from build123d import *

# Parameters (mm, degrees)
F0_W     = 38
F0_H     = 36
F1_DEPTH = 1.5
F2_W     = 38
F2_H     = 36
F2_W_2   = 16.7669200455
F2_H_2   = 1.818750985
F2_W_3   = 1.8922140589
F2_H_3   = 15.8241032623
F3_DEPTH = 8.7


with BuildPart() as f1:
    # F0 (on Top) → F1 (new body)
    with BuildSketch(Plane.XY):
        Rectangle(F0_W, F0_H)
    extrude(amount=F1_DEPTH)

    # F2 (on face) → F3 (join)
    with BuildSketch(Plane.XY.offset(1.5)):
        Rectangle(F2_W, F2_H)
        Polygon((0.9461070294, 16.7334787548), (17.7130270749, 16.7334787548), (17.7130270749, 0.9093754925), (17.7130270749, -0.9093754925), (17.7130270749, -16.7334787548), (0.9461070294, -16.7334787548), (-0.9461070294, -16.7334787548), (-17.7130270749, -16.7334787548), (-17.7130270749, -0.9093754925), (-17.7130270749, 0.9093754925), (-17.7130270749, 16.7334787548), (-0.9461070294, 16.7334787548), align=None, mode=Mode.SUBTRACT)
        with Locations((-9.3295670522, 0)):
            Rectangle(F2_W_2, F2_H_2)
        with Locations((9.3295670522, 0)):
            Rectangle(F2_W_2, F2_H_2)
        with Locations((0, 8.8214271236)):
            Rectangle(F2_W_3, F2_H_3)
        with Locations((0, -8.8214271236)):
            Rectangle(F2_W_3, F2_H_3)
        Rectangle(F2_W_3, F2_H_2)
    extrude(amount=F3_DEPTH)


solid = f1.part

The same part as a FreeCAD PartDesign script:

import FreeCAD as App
import Part
import Sketcher

V = App.Vector
Q = App.Units.Quantity

doc = App.newDocument("Part")
body = doc.addObject("PartDesign::Body", "Body")

# Sketch on XY plane
sketch1 = body.newObject("Sketcher::SketchObject", "Sketch")
sketch1.AttachmentSupport = (doc.getObject("XY_Plane"), [""])
sketch1.MapMode = "FlatFace"
sketch1.addGeometry([
    Part.LineSegment(V(-19, 18, 0), V(-19, -18, 0)),
    Part.LineSegment(V(-19, -18, 0), V(19, -18, 0)),
    Part.LineSegment(V(19, -18, 0), V(19, 18, 0)),
    Part.LineSegment(V(19, 18, 0), V(-19, 18, 0)),
], False)
sketch1.addConstraint([
    Sketcher.Constraint("Coincident", 0, 2, 1, 1),
    Sketcher.Constraint("Coincident", 1, 2, 2, 1),
    Sketcher.Constraint("Coincident", 2, 2, 3, 1),
    Sketcher.Constraint("Coincident", 3, 2, 0, 1),
    Sketcher.Constraint("Vertical", 0),
    Sketcher.Constraint("Horizontal", 1),
    Sketcher.Constraint("Vertical", 2),
    Sketcher.Constraint("Horizontal", 3),
    Sketcher.Constraint("Symmetric", 0, 2, 2, 2, -1, 1),
    Sketcher.Constraint("DistanceX", 1, 1, 1, 2, Q("38 mm")),
    Sketcher.Constraint("DistanceY", 0, 2, 0, 1, Q("36 mm")),
])
pad1 = body.newObject("PartDesign::Pad", "Pad")
pad1.Profile = sketch1
pad1.Length = 1.5

# Sketch on XY plane
sketch2 = body.newObject("Sketcher::SketchObject", "Sketch001")
sketch2.AttachmentSupport = (doc.getObject("XY_Plane"), [""])
sketch2.MapMode = "FlatFace"
sketch2.AttachmentOffset = App.Placement(V(0, 0, 1.5), App.Rotation())
sketch2.addGeometry([
    Part.LineSegment(V(-19, 18, 0), V(-19, -18, 0)),  # 0
    Part.LineSegment(V(-19, -18, 0), V(19, -18, 0)),  # 1
    Part.LineSegment(V(19, -18, 0), V(19, 18, 0)),  # 2
    Part.LineSegment(V(19, 18, 0), V(-19, 18, 0)),  # 3
    Part.LineSegment(V(-18, -1, 0), V(-1, -1, 0)),  # 4
    Part.LineSegment(V(-1, -1, 0), V(-1, -17, 0)),  # 5
    Part.LineSegment(V(-1, -17, 0), V(-18, -17, 0)),  # 6
    Part.LineSegment(V(-18, -17, 0), V(-18, -1, 0)),  # 7
    Part.LineSegment(V(1, -17, 0), V(1, -1, 0)),  # 8
    Part.LineSegment(V(1, -1, 0), V(18, -1, 0)),  # 9
    Part.LineSegment(V(18, -1, 0), V(18, -17, 0)),  # 10
    Part.LineSegment(V(18, -17, 0), V(1, -17, 0)),  # 11
    Part.LineSegment(V(-1, 1, 0), V(-18, 1, 0)),  # 12
    Part.LineSegment(V(-18, 1, 0), V(-18, 17, 0)),  # 13
    Part.LineSegment(V(-18, 17, 0), V(-1, 17, 0)),  # 14
    Part.LineSegment(V(-1, 17, 0), V(-1, 1, 0)),  # 15
    Part.LineSegment(V(18, 1, 0), V(1, 1, 0)),  # 16
    Part.LineSegment(V(1, 1, 0), V(1, 17, 0)),  # 17
    Part.LineSegment(V(1, 17, 0), V(18, 17, 0)),  # 18
    Part.LineSegment(V(18, 17, 0), V(18, 1, 0)),  # 19
], False)
sketch2.addConstraint([
    Sketcher.Constraint("Coincident", 0, 2, 1, 1),
    Sketcher.Constraint("Coincident", 1, 2, 2, 1),
    Sketcher.Constraint("Coincident", 2, 2, 3, 1),
    Sketcher.Constraint("Coincident", 3, 2, 0, 1),
    Sketcher.Constraint("Coincident", 4, 2, 5, 1),
    Sketcher.Constraint("Coincident", 5, 2, 6, 1),
    Sketcher.Constraint("Coincident", 6, 2, 7, 1),
    Sketcher.Constraint("Coincident", 7, 2, 4, 1),
    Sketcher.Constraint("Coincident", 8, 2, 9, 1),
    Sketcher.Constraint("Coincident", 9, 2, 10, 1),
    Sketcher.Constraint("Coincident", 10, 2, 11, 1),
    Sketcher.Constraint("Coincident", 11, 2, 8, 1),
    Sketcher.Constraint("Coincident", 12, 2, 13, 1),
    Sketcher.Constraint("Coincident", 13, 2, 14, 1),
    Sketcher.Constraint("Coincident", 14, 2, 15, 1),
    Sketcher.Constraint("Coincident", 15, 2, 12, 1),
    Sketcher.Constraint("Coincident", 16, 2, 17, 1),
    Sketcher.Constraint("Coincident", 17, 2, 18, 1),
    Sketcher.Constraint("Coincident", 18, 2, 19, 1),
    Sketcher.Constraint("Coincident", 19, 2, 16, 1),
    Sketcher.Constraint("Vertical", 0),
    Sketcher.Constraint("Horizontal", 1),
    Sketcher.Constraint("Vertical", 2),
    Sketcher.Constraint("Horizontal", 3),
    Sketcher.Constraint("Horizontal", 4),
    Sketcher.Constraint("Vertical", 5),
    Sketcher.Constraint("Horizontal", 6),
    Sketcher.Constraint("Vertical", 7),
    Sketcher.Constraint("Vertical", 8),
    Sketcher.Constraint("Horizontal", 9),
    Sketcher.Constraint("Vertical", 10),
    Sketcher.Constraint("Horizontal", 11),
    Sketcher.Constraint("Horizontal", 12),
    Sketcher.Constraint("Vertical", 13),
    Sketcher.Constraint("Horizontal", 14),
    Sketcher.Constraint("Vertical", 15),
    Sketcher.Constraint("Horizontal", 16),
    Sketcher.Constraint("Vertical", 17),
    Sketcher.Constraint("Horizontal", 18),
    Sketcher.Constraint("Vertical", 19),
    Sketcher.Constraint("Symmetric", 0, 2, 2, 2, -1, 1),
    Sketcher.Constraint("Symmetric", 9, 2, 12, 2, -1, 1),
    Sketcher.Constraint("Symmetric", 11, 2, 14, 2, -1, 1),
    Sketcher.Constraint("Symmetric", 4, 2, 16, 2, -1, 1),
    Sketcher.Constraint("Symmetric", 6, 2, 18, 2, -1, 1),
    Sketcher.Constraint("Symmetric", 4, 2, 8, 2, -2),
    Sketcher.Constraint("Symmetric", 6, 2, 10, 2, -2),
    Sketcher.Constraint("DistanceX", 1, 1, 1, 2, Q("38 mm")),
    Sketcher.Constraint("DistanceY", 0, 2, 0, 1, Q("36 mm")),
    Sketcher.Constraint("DistanceX", 4, 1, 4, 2, Q("16.76692 mm")),
    Sketcher.Constraint("DistanceY", 5, 2, 5, 1, Q("15.824103 mm")),
    Sketcher.Constraint("DistanceY", 5, 2, -1, 1, Q("16.733479 mm")),
    Sketcher.Constraint("DistanceX", 4, 2, -1, 1, Q("0.946107 mm")),
])
pad2 = body.newObject("PartDesign::Pad", "Pad001")
pad2.Profile = sketch2
pad2.Length = 8.7

doc.recompute()
